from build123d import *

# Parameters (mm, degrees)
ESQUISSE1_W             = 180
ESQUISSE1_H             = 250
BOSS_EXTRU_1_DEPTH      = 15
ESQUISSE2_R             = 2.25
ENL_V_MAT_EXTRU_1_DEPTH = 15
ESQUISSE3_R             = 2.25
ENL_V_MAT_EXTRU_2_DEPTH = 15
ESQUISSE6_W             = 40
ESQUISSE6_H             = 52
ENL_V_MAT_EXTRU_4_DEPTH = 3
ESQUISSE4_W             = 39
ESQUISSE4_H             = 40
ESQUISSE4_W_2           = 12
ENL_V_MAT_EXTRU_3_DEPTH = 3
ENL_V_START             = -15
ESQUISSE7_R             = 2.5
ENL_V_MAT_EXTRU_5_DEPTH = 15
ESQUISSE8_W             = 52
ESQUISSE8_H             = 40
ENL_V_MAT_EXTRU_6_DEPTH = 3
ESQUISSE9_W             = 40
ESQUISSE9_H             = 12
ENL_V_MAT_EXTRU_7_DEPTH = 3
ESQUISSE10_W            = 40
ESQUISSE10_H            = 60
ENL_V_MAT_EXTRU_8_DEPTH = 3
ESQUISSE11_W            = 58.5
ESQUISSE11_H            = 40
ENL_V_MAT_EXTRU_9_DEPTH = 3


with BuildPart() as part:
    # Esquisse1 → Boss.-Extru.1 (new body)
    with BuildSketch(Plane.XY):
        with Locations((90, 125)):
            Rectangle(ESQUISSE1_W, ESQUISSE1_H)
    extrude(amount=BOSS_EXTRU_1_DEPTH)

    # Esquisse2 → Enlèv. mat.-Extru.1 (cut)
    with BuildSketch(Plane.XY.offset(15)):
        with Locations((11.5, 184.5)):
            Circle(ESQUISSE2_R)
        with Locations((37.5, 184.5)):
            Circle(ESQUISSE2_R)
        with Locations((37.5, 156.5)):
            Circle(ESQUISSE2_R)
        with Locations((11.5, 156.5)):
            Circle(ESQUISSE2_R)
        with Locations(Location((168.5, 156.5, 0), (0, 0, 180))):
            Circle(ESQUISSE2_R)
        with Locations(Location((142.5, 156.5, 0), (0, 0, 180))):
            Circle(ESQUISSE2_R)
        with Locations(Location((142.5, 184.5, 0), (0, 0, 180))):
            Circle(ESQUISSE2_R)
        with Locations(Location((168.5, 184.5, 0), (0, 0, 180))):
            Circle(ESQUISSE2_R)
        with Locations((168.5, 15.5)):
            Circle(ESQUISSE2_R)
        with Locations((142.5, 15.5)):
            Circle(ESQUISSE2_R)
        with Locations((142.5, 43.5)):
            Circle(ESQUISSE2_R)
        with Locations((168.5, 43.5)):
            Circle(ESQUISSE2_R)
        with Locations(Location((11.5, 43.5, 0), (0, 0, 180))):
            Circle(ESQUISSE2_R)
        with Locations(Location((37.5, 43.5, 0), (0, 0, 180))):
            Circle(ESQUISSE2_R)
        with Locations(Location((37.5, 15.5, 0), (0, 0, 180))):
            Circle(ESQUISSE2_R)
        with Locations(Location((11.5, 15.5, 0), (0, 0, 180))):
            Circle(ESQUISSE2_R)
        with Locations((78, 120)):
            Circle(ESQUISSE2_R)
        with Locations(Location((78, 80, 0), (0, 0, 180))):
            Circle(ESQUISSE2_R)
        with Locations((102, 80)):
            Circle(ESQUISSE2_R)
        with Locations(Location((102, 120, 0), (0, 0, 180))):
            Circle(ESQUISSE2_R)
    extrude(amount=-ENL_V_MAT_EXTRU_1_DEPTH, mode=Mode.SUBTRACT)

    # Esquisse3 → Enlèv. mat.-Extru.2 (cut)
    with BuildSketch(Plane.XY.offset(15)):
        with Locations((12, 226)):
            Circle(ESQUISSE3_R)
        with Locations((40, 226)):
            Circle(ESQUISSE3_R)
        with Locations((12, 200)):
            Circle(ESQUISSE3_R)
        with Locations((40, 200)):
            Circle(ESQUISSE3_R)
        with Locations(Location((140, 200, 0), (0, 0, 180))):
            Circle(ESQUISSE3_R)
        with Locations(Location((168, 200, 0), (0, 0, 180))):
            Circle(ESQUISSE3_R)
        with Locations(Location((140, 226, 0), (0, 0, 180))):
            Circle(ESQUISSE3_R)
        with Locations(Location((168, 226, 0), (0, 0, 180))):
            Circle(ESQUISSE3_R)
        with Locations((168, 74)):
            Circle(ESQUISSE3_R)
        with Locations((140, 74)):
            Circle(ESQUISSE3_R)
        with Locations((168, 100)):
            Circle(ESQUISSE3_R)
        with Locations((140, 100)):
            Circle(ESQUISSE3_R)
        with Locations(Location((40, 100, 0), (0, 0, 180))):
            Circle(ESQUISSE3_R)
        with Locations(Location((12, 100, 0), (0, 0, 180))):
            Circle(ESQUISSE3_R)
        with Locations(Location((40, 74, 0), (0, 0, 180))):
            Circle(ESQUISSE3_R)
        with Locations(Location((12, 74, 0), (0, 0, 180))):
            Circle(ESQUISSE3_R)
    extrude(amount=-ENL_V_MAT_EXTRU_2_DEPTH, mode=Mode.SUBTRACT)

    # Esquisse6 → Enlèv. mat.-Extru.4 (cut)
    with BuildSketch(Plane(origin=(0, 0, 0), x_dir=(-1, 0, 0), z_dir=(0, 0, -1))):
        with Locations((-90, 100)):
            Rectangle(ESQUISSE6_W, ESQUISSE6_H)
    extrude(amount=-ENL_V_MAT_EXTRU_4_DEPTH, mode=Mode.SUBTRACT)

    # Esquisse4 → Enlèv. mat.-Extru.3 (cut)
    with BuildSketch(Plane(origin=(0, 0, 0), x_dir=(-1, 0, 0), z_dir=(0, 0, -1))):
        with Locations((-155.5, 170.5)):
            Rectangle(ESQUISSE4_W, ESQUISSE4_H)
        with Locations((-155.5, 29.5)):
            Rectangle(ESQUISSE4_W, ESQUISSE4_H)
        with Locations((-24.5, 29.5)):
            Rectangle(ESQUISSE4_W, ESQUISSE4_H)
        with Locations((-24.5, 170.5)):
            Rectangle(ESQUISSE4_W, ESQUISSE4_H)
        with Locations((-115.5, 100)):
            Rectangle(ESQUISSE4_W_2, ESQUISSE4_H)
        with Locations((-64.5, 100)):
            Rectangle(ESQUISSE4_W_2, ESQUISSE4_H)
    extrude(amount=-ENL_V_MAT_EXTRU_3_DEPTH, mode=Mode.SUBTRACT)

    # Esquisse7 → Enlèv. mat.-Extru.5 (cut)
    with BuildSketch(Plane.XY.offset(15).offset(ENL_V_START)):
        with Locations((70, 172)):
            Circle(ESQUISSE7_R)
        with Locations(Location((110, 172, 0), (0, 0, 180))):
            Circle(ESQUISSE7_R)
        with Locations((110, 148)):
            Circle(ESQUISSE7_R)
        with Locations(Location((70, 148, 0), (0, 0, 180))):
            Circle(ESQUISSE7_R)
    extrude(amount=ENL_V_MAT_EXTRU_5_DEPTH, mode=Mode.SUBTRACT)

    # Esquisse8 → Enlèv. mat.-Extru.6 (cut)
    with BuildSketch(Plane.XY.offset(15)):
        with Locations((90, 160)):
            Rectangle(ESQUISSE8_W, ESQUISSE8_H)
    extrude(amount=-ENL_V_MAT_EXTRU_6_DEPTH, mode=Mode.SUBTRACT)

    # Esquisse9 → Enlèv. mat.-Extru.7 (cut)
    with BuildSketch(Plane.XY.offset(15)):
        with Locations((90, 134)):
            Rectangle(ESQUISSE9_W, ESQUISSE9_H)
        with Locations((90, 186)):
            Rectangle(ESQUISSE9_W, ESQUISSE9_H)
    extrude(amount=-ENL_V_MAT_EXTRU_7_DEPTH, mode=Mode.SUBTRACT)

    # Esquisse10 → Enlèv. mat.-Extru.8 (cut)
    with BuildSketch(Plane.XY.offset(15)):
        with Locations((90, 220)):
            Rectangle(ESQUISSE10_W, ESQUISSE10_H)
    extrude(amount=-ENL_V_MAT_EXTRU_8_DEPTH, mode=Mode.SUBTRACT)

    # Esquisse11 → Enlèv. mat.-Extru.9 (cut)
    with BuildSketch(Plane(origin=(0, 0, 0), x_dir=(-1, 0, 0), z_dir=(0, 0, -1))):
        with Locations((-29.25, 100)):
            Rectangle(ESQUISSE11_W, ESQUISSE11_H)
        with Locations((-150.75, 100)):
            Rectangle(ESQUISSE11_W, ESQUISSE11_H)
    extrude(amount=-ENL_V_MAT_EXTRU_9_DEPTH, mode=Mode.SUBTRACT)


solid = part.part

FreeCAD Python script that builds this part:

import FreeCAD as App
import Part
import Sketcher

doc = App.newDocument("Part")
body = doc.addObject("PartDesign::Body", "Body")

sketch1 = body.newObject("Sketcher::SketchObject", "Sketch")
sketch1.AttachmentSupport = (doc.getObject("XY_Plane"), [""])
sketch1.MapMode = "FlatFace"
sketch1.addGeometry([
    Part.LineSegment(App.Vector(0, 250, 0), App.Vector(0, 0, 0)),
    Part.LineSegment(App.Vector(0, 0, 0), App.Vector(180, 0, 0)),
    Part.LineSegment(App.Vector(180, 0, 0), App.Vector(180, 250, 0)),
    Part.LineSegment(App.Vector(180, 250, 0), App.Vector(0, 250, 0)),
], False)
sketch1.addConstraint([
    Sketcher.Constraint("Coincident", 0, 2, 1, 1),
    Sketcher.Constraint("Coincident", 1, 2, 2, 1),
    Sketcher.Constraint("Coincident", 2, 2, 3, 1),
    Sketcher.Constraint("Coincident", 3, 2, 0, 1),
    Sketcher.Constraint("Vertical", 0),
    Sketcher.Constraint("Horizontal", 1),
    Sketcher.Constraint("Vertical", 2),
    Sketcher.Constraint("Horizontal", 3),
    Sketcher.Constraint("Coincident", 0, 2, -1, 1),
    Sketcher.Constraint("DistanceX", 1, 1, 1, 2, 180.0),
    Sketcher.Constraint("DistanceY", 0, 2, 0, 1, 250.0),
])
pad1 = body.newObject("PartDesign::Pad", "Pad")
pad1.Profile = sketch1
pad1.Length = 15

sketch2 = body.newObject("Sketcher::SketchObject", "Sketch001")
sketch2.AttachmentSupport = (doc.getObject("XY_Plane"), [""])
sketch2.MapMode = "FlatFace"
sketch2.AttachmentOffset = App.Placement(App.Vector(0, 0, 15), App.Rotation())
sketch2.addGeometry([
    Part.Circle(App.Vector(11.5, 184.5, 0), App.Vector(0, 0, 1), 2.2),
    Part.Circle(App.Vector(37.5, 184.5, 0), App.Vector(0, 0, 1), 2.2),
    Part.Circle(App.Vector(37.5, 156.5, 0), App.Vector(0, 0, 1), 2.2),
    Part.Circle(App.Vector(11.5, 156.5, 0), App.Vector(0, 0, 1), 2.2),
    Part.Circle(App.Vector(168.5, 156.5, 0), App.Vector(0, 0, 1), 2.2),
    Part.Circle(App.Vector(142.5, 156.5, 0), App.Vector(0, 0, 1), 2.2),
    Part.Circle(App.Vector(142.5, 184.5, 0), App.Vector(0, 0, 1), 2.2),
    Part.Circle(App.Vector(168.5, 184.5, 0), App.Vector(0, 0, 1), 2.2),
    Part.Circle(App.Vector(168.5, 15.5, 0), App.Vector(0, 0, 1), 2.2),
    Part.Circle(App.Vector(142.5, 15.5, 0), App.Vector(0, 0, 1), 2.2),
    Part.Circle(App.Vector(142.5, 43.5, 0), App.Vector(0, 0, 1), 2.2),
    Part.Circle(App.Vector(168.5, 43.5, 0), App.Vector(0, 0, 1), 2.2),
    Part.Circle(App.Vector(11.5, 43.5, 0), App.Vector(0, 0, 1), 2.2),
    Part.Circle(App.Vector(37.5, 43.5, 0), App.Vector(0, 0, 1), 2.2),
    Part.Circle(App.Vector(37.5, 15.5, 0), App.Vector(0, 0, 1), 2.2),
    Part.Circle(App.Vector(11.5, 15.5, 0), App.Vector(0, 0, 1), 2.2),
    Part.Circle(App.Vector(78, 120, 0), App.Vector(0, 0, 1), 2.2),
    Part.Circle(App.Vector(78, 80, 0), App.Vector(0, 0, 1), 2.2),
    Part.Circle(App.Vector(102, 80, 0), App.Vector(0, 0, 1), 2.2),
    Part.Circle(App.Vector(102, 120, 0), App.Vector(0, 0, 1), 2.2),
], False)
sketch2.addConstraint([
    Sketcher.Constraint("Equal", 0, 1),
    Sketcher.Constraint("Equal", 1, 2),
    Sketcher.Constraint("Equal", 2, 3),
    Sketcher.Constraint("Equal", 3, 4),
    Sketcher.Constraint("Equal", 4, 5),
    Sketcher.Constraint("Equal", 5, 6),
    Sketcher.Constraint("Equal", 6, 7),
    Sketcher.Constraint("Equal", 7, 8),
    Sketcher.Constraint("Equal", 8, 9),
    Sketcher.Constraint("Equal", 9, 10),
    Sketcher.Constraint("Equal", 10, 11),
    Sketcher.Constraint("Equal", 11, 12),
    Sketcher.Constraint("Equal", 12, 13),
    Sketcher.Constraint("Equal", 13, 14),
    Sketcher.Constraint("Equal", 14, 15),
    Sketcher.Constraint("Equal", 15, 16),
    Sketcher.Constraint("Equal", 16, 17),
    Sketcher.Constraint("Equal", 17, 18),
    Sketcher.Constraint("Equal", 18, 19),
    Sketcher.Constraint("Horizontal", 0, 3, 1, 3),
    Sketcher.Constraint("Horizontal", 2, 3, 3, 3),
    Sketcher.Constraint("Horizontal", 3, 3, 4, 3),
    Sketcher.Constraint("Horizontal", 4, 3, 5, 3),
    Sketcher.Constraint("Horizontal", 1, 3, 6, 3),
    Sketcher.Constraint("Horizontal", 6, 3, 7, 3),
    Sketcher.Constraint("Horizontal", 8, 3, 9, 3),
    Sketcher.Constraint("Horizontal", 10, 3, 11, 3),
    Sketcher.Constraint("Horizontal", 11, 3, 12, 3),
    Sketcher.Constraint("Horizontal", 12, 3, 13, 3),
    Sketcher.Constraint("Horizontal", 9, 3, 14, 3),
    Sketcher.Constraint("Horizontal", 14, 3, 15, 3),
    Sketcher.Constraint("Horizontal", 17, 3, 18, 3),
    Sketcher.Constraint("Horizontal", 16, 3, 19, 3),
    Sketcher.Constraint("Vertical", 1, 3, 2, 3),
    Sketcher.Constraint("Vertical", 0, 3, 3, 3),
    Sketcher.Constraint("Vertical", 5, 3, 6, 3),
    Sketcher.Constraint("Vertical", 4, 3, 7, 3),
    Sketcher.Constraint("Vertical", 7, 3, 8, 3),
    Sketcher.Constraint("Vertical", 6, 3, 9, 3),
    Sketcher.Constraint("Vertical", 9, 3, 10, 3),
    Sketcher.Constraint("Vertical", 8, 3, 11, 3),
    Sketcher.Constraint("Vertical", 3, 3, 12, 3),
    Sketcher.Constraint("Vertical", 2, 3, 13, 3),
    Sketcher.Constraint("Vertical", 13, 3, 14, 3),
    Sketcher.Constraint("Vertical", 12, 3, 15, 3),
    Sketcher.Constraint("Vertical", 16, 3, 17, 3),
    Sketcher.Constraint("Vertical", 18, 3, 19, 3),
    Sketcher.Constraint("Diameter", 0, 4.5),
    Sketcher.Constraint("DistanceX", -1, 1, 16, 3, 78.0),
    Sketcher.Constraint("DistanceY", -1, 1, 16, 3, 120.0),
    Sketcher.Constraint("DistanceY", -1, 1, 17, 3, 80.0),
    Sketcher.Constraint("DistanceX", -1, 1, 18, 3, 102.0),
    Sketcher.Constraint("DistanceX", 0, 3, 1, 3, 26.0),
    Sketcher.Constraint("DistanceY", 2, 3, 1, 3, 28.0),
    Sketcher.Constraint("DistanceX", 2, 3, 4, 3, 131.0),
    Sketcher.Constraint("DistanceX", 5, 3, 4, 3, 26.0),
    Sketcher.Constraint("DistanceY", 8, 3, 4, 3, 141.0),
    Sketcher.Constraint("DistanceY", 9, 3, 10, 3, 28.0),
    Sketcher.Constraint("DistanceX", -1, 1, 0, 3, 11.5),
    Sketcher.Constraint("DistanceY", -1, 1, 0, 3, 184.5),
])
pocket1 = body.newObject("PartDesign::Pocket", "Pocket")
pocket1.Profile = sketch2
pocket1.Length = 15

sketch3 = body.newObject("Sketcher::SketchObject", "Sketch002")
sketch3.AttachmentSupport = (doc.getObject("XY_Plane"), [""])
sketch3.MapMode = "FlatFace"
sketch3.AttachmentOffset = App.Placement(App.Vector(0, 0, 15), App.Rotation())
sketch3.addGeometry([
    Part.Circle(App.Vector(12, 226, 0), App.Vector(0, 0, 1), 2.2),
    Part.Circle(App.Vector(40, 226, 0), App.Vector(0, 0, 1), 2.2),
    Part.Circle(App.Vector(12, 200, 0), App.Vector(0, 0, 1), 2.2),
    Part.Circle(App.Vector(40, 200, 0), App.Vector(0, 0, 1), 2.2),
    Part.Circle(App.Vector(140, 200, 0), App.Vector(0, 0, 1), 2.2),
    Part.Circle(App.Vector(168, 200, 0), App.Vector(0, 0, 1), 2.2),
    Part.Circle(App.Vector(140, 226, 0), App.Vector(0, 0, 1), 2.2),
    Part.Circle(App.Vector(168, 226, 0), App.Vector(0, 0, 1), 2.2),
    Part.Circle(App.Vector(168, 74, 0), App.Vector(0, 0, 1), 2.2),
    Part.Circle(App.Vector(140, 74, 0), App.Vector(0, 0, 1), 2.2),
    Part.Circle(App.Vector(168, 100, 0), App.Vector(0, 0, 1), 2.2),
    Part.Circle(App.Vector(140, 100, 0), App.Vector(0, 0, 1), 2.2),
    Part.Circle(App.Vector(40, 100, 0), App.Vector(0, 0, 1), 2.2),
    Part.Circle(App.Vector(12, 100, 0), App.Vector(0, 0, 1), 2.2),
    Part.Circle(App.Vector(40, 74, 0), App.Vector(0, 0, 1), 2.2),
    Part.Circle(App.Vector(12, 74, 0), App.Vector(0, 0, 1), 2.2),
], False)
sketch3.addConstraint([
    Sketcher.Constraint("Equal", 0, 1),
    Sketcher.Constraint("Equal", 1, 2),
    Sketcher.Constraint("Equal", 2, 3),
    Sketcher.Constraint("Equal", 3, 4),
    Sketcher.Constraint("Equal", 4, 5),
    Sketcher.Constraint("Equal", 5, 6),
    Sketcher.Constraint("Equal", 6, 7),
    Sketcher.Constraint("Equal", 7, 8),
    Sketcher.Constraint("Equal", 8, 9),
    Sketcher.Constraint("Equal", 9, 10),
    Sketcher.Constraint("Equal", 10, 11),
    Sketcher.Constraint("Equal", 11, 12),
    Sketcher.Constraint("Equal", 12, 13),
    Sketcher.Constraint("Equal", 13, 14),
    Sketcher.Constraint("Equal", 14, 15),
    Sketcher.Constraint("Horizontal", 0, 3, 1, 3),
    Sketcher.Constraint("Horizontal", 2, 3, 3, 3),
    Sketcher.Constraint("Horizontal", 3, 3, 4, 3),
    Sketcher.Constraint("Horizontal", 4, 3, 5, 3),
    Sketcher.Constraint("Horizontal", 1, 3, 6, 3),
    Sketcher.Constraint("Horizontal", 6, 3, 7, 3),
    Sketcher.Constraint("Horizontal", 8, 3, 9, 3),
    Sketcher.Constraint("Horizontal", 10, 3, 11, 3),
    Sketcher.Constraint("Horizontal", 11, 3, 12, 3),
    Sketcher.Constraint("Horizontal", 12, 3, 13, 3),
    Sketcher.Constraint("Horizontal", 9, 3, 14, 3),
    Sketcher.Constraint("Horizontal", 14, 3, 15, 3),
    Sketcher.Constraint("Vertical", 0, 3, 2, 3),
    Sketcher.Constraint("Vertical", 1, 3, 3, 3),
    Sketcher.Constraint("Vertical", 4, 3, 6, 3),
    Sketcher.Constraint("Vertical", 5, 3, 7, 3),
    Sketcher.Constraint("Vertical", 7, 3, 8, 3),
    Sketcher.Constraint("Vertical", 6, 3, 9, 3),
    Sketcher.Constraint("Vertical", 8, 3, 10, 3),
    Sketcher.Constraint("Vertical", 9, 3, 11, 3),
    Sketcher.Constraint("Vertical", 3, 3, 12, 3),
    Sketcher.Constraint("Vertical", 2, 3, 13, 3),
    Sketcher.Constraint("Vertical", 12, 3, 14, 3),
    Sketcher.Constraint("Vertical", 13, 3, 15, 3),
    Sketcher.Constraint("Diameter", 0, 4.5),
    Sketcher.Constraint("DistanceX", -1, 1, 0, 3, 12.0),
    Sketcher.Constraint("DistanceY", -1, 1, 0, 3, 226.0),
    Sketcher.Constraint("DistanceX", -1, 1, 1, 3, 40.0),
    Sketcher.Constraint("DistanceY", -1, 1, 2, 3, 200.0),
    Sketcher.Constraint("DistanceX", -1, 1, 4, 3, 140.0),
    Sketcher.Constraint("DistanceX", -1, 1, 5, 3, 168.0),
    Sketcher.Constraint("DistanceY", -1, 1, 8, 3, 74.0),
    Sketcher.Constraint("DistanceY", -1, 1, 10, 3, 100.0),
])
pocket2 = body.newObject("PartDesign::Pocket", "Pocket001")
pocket2.Profile = sketch3
pocket2.Length = 15

sketch4 = body.newObject("Sketcher::SketchObject", "Sketch003")
sketch4.AttachmentSupport = (doc.getObject("XY_Plane"), [""])
sketch4.MapMode = "FlatFace"
sketch4.addGeometry([
    Part.LineSegment(App.Vector(110, 126, 0), App.Vector(110, 74, 0)),
    Part.LineSegment(App.Vector(110, 74, 0), App.Vector(70, 74, 0)),
    Part.LineSegment(App.Vector(70, 74, 0), App.Vector(70, 126, 0)),
    Part.LineSegment(App.Vector(70, 126, 0), App.Vector(110, 126, 0)),
], False)
sketch4.addConstraint([
    Sketcher.Constraint("Coincident", 0, 2, 1, 1),
    Sketcher.Constraint("Coincident", 1, 2, 2, 1),
    Sketcher.Constraint("Coincident", 2, 2, 3, 1),
    Sketcher.Constraint("Coincident", 3, 2, 0, 1),
    Sketcher.Constraint("Vertical", 0),
    Sketcher.Constraint("Horizontal", 1),
    Sketcher.Constraint("Vertical", 2),
    Sketcher.Constraint("Horizontal", 3),
    Sketcher.Constraint("DistanceX", 1, 2, 1, 1, 40.0),
    Sketcher.Constraint("DistanceY", 0, 2, 0, 1, 52.0),
    Sketcher.Constraint("DistanceX", -1, 1, 0, 2, 110.0),
    Sketcher.Constraint("DistanceY", -1, 1, 0, 2, 74.0),
])
pocket3 = body.newObject("PartDesign::Pocket", "Pocket002")
pocket3.Profile = sketch4
pocket3.Length = 3
pocket3.Reversed = True

sketch5 = body.newObject("Sketcher::SketchObject", "Sketch004")
sketch5.AttachmentSupport = (doc.getObject("XY_Plane"), [""])
sketch5.MapMode = "FlatFace"
sketch5.addGeometry([
    Part.LineSegment(App.Vector(175, 190, 0), App.Vector(175, 150, 0)),
    Part.LineSegment(App.Vector(175, 150, 0), App.Vector(136, 150, 0)),
    Part.LineSegment(App.Vector(136, 150, 0), App.Vector(136, 190, 0)),
    Part.LineSegment(App.Vector(136, 190, 0), App.Vector(175, 190, 0)),
    Part.LineSegment(App.Vector(175, 50, 0), App.Vector(175, 10, 0)),
    Part.LineSegment(App.Vector(175, 10, 0), App.Vector(136, 10, 0)),
    Part.LineSegment(App.Vector(136, 10, 0), App.Vector(136, 50, 0)),
    Part.LineSegment(App.Vector(136, 50, 0), App.Vector(175, 50, 0)),
    Part.LineSegment(App.Vector(44, 50, 0), App.Vector(44, 10, 0)),
    Part.LineSegment(App.Vector(44, 10, 0), App.Vector(5, 10, 0)),
    Part.LineSegment(App.Vector(5, 10, 0), App.Vector(5, 50, 0)),
    Part.LineSegment(App.Vector(5, 50, 0), App.Vector(44, 50, 0)),
    Part.LineSegment(App.Vector(44, 190, 0), App.Vector(44, 150, 0)),
    Part.LineSegment(App.Vector(44, 150, 0), App.Vector(5, 150, 0)),
    Part.LineSegment(App.Vector(5, 150, 0), App.Vector(5, 190, 0)),
    Part.LineSegment(App.Vector(5, 190, 0), App.Vector(44, 190, 0)),
    Part.LineSegment(App.Vector(122, 120, 0), App.Vector(122, 80, 0)),
    Part.LineSegment(App.Vector(122, 80, 0), App.Vector(110, 80, 0)),
    Part.LineSegment(App.Vector(110, 80, 0), App.Vector(110, 120, 0)),
    Part.LineSegment(App.Vector(110, 120, 0), App.Vector(122, 120, 0)),
    Part.LineSegment(App.Vector(70, 120, 0), App.Vector(70, 80, 0)),
    Part.LineSegment(App.Vector(70, 80, 0), App.Vector(58, 80, 0)),
    Part.LineSegment(App.Vector(58, 80, 0), App.Vector(58, 120, 0)),
    Part.LineSegment(App.Vector(58, 120, 0), App.Vector(70, 120, 0)),
], False)
sketch5.addConstraint([
    Sketcher.Constraint("Coincident", 0, 2, 1, 1),
    Sketcher.Constraint("Coincident", 1, 2, 2, 1),
    Sketcher.Constraint("Coincident", 2, 2, 3, 1),
    Sketcher.Constraint("Coincident", 3, 2, 0, 1),
    Sketcher.Constraint("Coincident", 4, 2, 5, 1),
    Sketcher.Constraint("Coincident", 5, 2, 6, 1),
    Sketcher.Constraint("Coincident", 6, 2, 7, 1),
    Sketcher.Constraint("Coincident", 7, 2, 4, 1),
    Sketcher.Constraint("Coincident", 8, 2, 9, 1),
    Sketcher.Constraint("Coincident", 9, 2, 10, 1),
    Sketcher.Constraint("Coincident", 10, 2, 11, 1),
    Sketcher.Constraint("Coincident", 11, 2, 8, 1),
    Sketcher.Constraint("Coincident", 12, 2, 13, 1),
    Sketcher.Constraint("Coincident", 13, 2, 14, 1),
    Sketcher.Constraint("Coincident", 14, 2, 15, 1),
    Sketcher.Constraint("Coincident", 15, 2, 12, 1),
    Sketcher.Constraint("Coincident", 16, 2, 17, 1),
    Sketcher.Constraint("Coincident", 17, 2, 18, 1),
    Sketcher.Constraint("Coincident", 18, 2, 19, 1),
    Sketcher.Constraint("Coincident", 19, 2, 16, 1),
    Sketcher.Constraint("Coincident", 20, 2, 21, 1),
    Sketcher.Constraint("Coincident", 21, 2, 22, 1),
    Sketcher.Constraint("Coincident", 22, 2, 23, 1),
    Sketcher.Constraint("Coincident", 23, 2, 20, 1),
    Sketcher.Constraint("Vertical", 0),
    Sketcher.Constraint("Horizontal", 1),
    Sketcher.Constraint("Vertical", 2),
    Sketcher.Constraint("Horizontal", 3),
    Sketcher.Constraint("Vertical", 4),
    Sketcher.Constraint("Horizontal", 5),
    Sketcher.Constraint("Vertical", 6),
    Sketcher.Constraint("Horizontal", 7),
    Sketcher.Constraint("Vertical", 8),
    Sketcher.Constraint("Horizontal", 9),
    Sketcher.Constraint("Vertical", 10),
    Sketcher.Constraint("Horizontal", 11),
    Sketcher.Constraint("Vertical", 12),
    Sketcher.Constraint("Horizontal", 13),
    Sketcher.Constraint("Vertical", 14),
    Sketcher.Constraint("Horizontal", 15),
    Sketcher.Constraint("Vertical", 16),
    Sketcher.Constraint("Horizontal", 17),
    Sketcher.Constraint("Vertical", 18),
    Sketcher.Constraint("Horizontal", 19),
    Sketcher.Constraint("Vertical", 20),
    Sketcher.Constraint("Horizontal", 21),
    Sketcher.Constraint("Vertical", 22),
    Sketcher.Constraint("Horizontal", 23),
    Sketcher.Constraint("Horizontal", 5, 2, 8, 2),
    Sketcher.Constraint("Horizontal", 7, 2, 10, 2),
    Sketcher.Constraint("Horizontal", 1, 2, 12, 2),
    Sketcher.Constraint("Horizontal", 3, 2, 14, 2),
    Sketcher.Constraint("Horizontal", 17, 2, 20, 2),
    Sketcher.Constraint("Horizontal", 19, 2, 22, 2),
    Sketcher.Constraint("Vertical", 3, 2, 4, 2),
    Sketcher.Constraint("Vertical", 2, 2, 5, 2),
    Sketcher.Constraint("Vertical", 11, 2, 12, 2),
    Sketcher.Constraint("Vertical", 10, 2, 13, 2),
    Sketcher.Constraint("Equal", 7, 9),
    Sketcher.Constraint("Equal", 19, 21),
    Sketcher.Constraint("Equal", 2, 4),
    Sketcher.Constraint("Equal", 14, 16),
    Sketcher.Constraint("DistanceX", 1, 2, 1, 1, 39.0),
    Sketcher.Constraint("DistanceX", 17, 2, 17, 1, 12.0),
    Sketcher.Constraint("DistanceY", 0, 2, 0, 1, 40.0),
    Sketcher.Constraint("DistanceX", -1, 1, 0, 2, 175.0),
    Sketcher.Constraint("DistanceX", -1, 1, 8, 2, 44.0),
    Sketcher.Constraint("DistanceY", -1, 1, 16, 2, 80.0),
    Sketcher.Constraint("DistanceY", 4, 2, 0, 2, 141.0),
    Sketcher.Constraint("DistanceX", 20, 2, 17, 2, 39.0),
    Sketcher.Constraint("DistanceY", -1, 1, 0, 2, 150.5),
    Sketcher.Constraint("DistanceX", -1, 1, 16, 2, 121.5),
])
pocket4 = body.newObject("PartDesign::Pocket", "Pocket003")
pocket4.Profile = sketch5
pocket4.Length = 3
pocket4.Reversed = True

sketch6 = body.newObject("Sketcher::SketchObject", "Sketch005")
sketch6.AttachmentSupport = (doc.getObject("XY_Plane"), [""])
sketch6.MapMode = "FlatFace"
sketch6.addGeometry([
    Part.Circle(App.Vector(70, 172, 0), App.Vector(0, 0, 1), 2.5),
    Part.Circle(App.Vector(110, 172, 0), App.Vector(0, 0, 1), 2.5),
    Part.Circle(App.Vector(110, 148, 0), App.Vector(0, 0, 1), 2.5),
    Part.Circle(App.Vector(70, 148, 0), App.Vector(0, 0, 1), 2.5),
], False)
sketch6.addConstraint([
    Sketcher.Constraint("Equal", 0, 1),
    Sketcher.Constraint("Equal", 1, 2),
    Sketcher.Constraint("Equal", 2, 3),
    Sketcher.Constraint("Horizontal", 0, 3, 1, 3),
    Sketcher.Constraint("Horizontal", 2, 3, 3, 3),
    Sketcher.Constraint("Vertical", 1, 3, 2, 3),
    Sketcher.Constraint("Vertical", 0, 3, 3, 3),
    Sketcher.Constraint("Diameter", 0, 5.0),
    Sketcher.Constraint("DistanceX", -1, 1, 0, 3, 70.0),
    Sketcher.Constraint("DistanceY", -1, 1, 0, 3, 172.0),
    Sketcher.Constraint("DistanceX", -1, 1, 1, 3, 110.0),
    Sketcher.Constraint("DistanceY", -1, 1, 2, 3, 148.0),
])
pocket5 = body.newObject("PartDesign::Pocket", "Pocket004")
pocket5.Profile = sketch6
pocket5.Length = 15
pocket5.Reversed = True

sketch7 = body.newObject("Sketcher::SketchObject", "Sketch006")
sketch7.AttachmentSupport = (doc.getObject("XY_Plane"), [""])
sketch7.MapMode = "FlatFace"
sketch7.AttachmentOffset = App.Placement(App.Vector(0, 0, 15), App.Rotation())
sketch7.addGeometry([
    Part.LineSegment(App.Vector(64, 180, 0), App.Vector(64, 140, 0)),
    Part.LineSegment(App.Vector(64, 140, 0), App.Vector(116, 140, 0)),
    Part.LineSegment(App.Vector(116, 140, 0), App.Vector(116, 180, 0)),
    Part.LineSegment(App.Vector(116, 180, 0), App.Vector(64, 180, 0)),
], False)
sketch7.addConstraint([
    Sketcher.Constraint("Coincident", 0, 2, 1, 1),
    Sketcher.Constraint("Coincident", 1, 2, 2, 1),
    Sketcher.Constraint("Coincident", 2, 2, 3, 1),
    Sketcher.Constraint("Coincident", 3, 2, 0, 1),
    Sketcher.Constraint("Vertical", 0),
    Sketcher.Constraint("Horizontal", 1),
    Sketcher.Constraint("Vertical", 2),
    Sketcher.Constraint("Horizontal", 3),
    Sketcher.Constraint("DistanceX", 1, 1, 1, 2, 52.0),
    Sketcher.Constraint("DistanceY", 0, 2, 0, 1, 40.0),
    Sketcher.Constraint("DistanceX", -1, 1, 0, 2, 64.0),
    Sketcher.Constraint("DistanceY", -1, 1, 0, 2, 140.0),
])
pocket6 = body.newObject("PartDesign::Pocket", "Pocket005")
pocket6.Profile = sketch7
pocket6.Length = 3

sketch8 = body.newObject("Sketcher::SketchObject", "Sketch007")
sketch8.AttachmentSupport = (doc.getObject("XY_Plane"), [""])
sketch8.MapMode = "FlatFace"
sketch8.AttachmentOffset = App.Placement(App.Vector(0, 0, 15), App.Rotation())
sketch8.addGeometry([
    Part.LineSegment(App.Vector(70, 140, 0), App.Vector(70, 128, 0)),
    Part.LineSegment(App.Vector(70, 128, 0), App.Vector(110, 128, 0)),
    Part.LineSegment(App.Vector(110, 128, 0), App.Vector(110, 140, 0)),
    Part.LineSegment(App.Vector(110, 140, 0), App.Vector(70, 140, 0)),
    Part.LineSegment(App.Vector(70, 192, 0), App.Vector(70, 180, 0)),
    Part.LineSegment(App.Vector(70, 180, 0), App.Vector(110, 180, 0)),
    Part.LineSegment(App.Vector(110, 180, 0), App.Vector(110, 192, 0)),
    Part.LineSegment(App.Vector(110, 192, 0), App.Vector(70, 192, 0)),
], False)
sketch8.addConstraint([
    Sketcher.Constraint("Coincident", 0, 2, 1, 1),
    Sketcher.Constraint("Coincident", 1, 2, 2, 1),
    Sketcher.Constraint("Coincident", 2, 2, 3, 1),
    Sketcher.Constraint("Coincident", 3, 2, 0, 1),
    Sketcher.Constraint("Coincident", 4, 2, 5, 1),
    Sketcher.Constraint("Coincident", 5, 2, 6, 1),
    Sketcher.Constraint("Coincident", 6, 2, 7, 1),
    Sketcher.Constraint("Coincident", 7, 2, 4, 1),
    Sketcher.Constraint("Vertical", 0),
    Sketcher.Constraint("Horizontal", 1),
    Sketcher.Constraint("Vertical", 2),
    Sketcher.Constraint("Horizontal", 3),
    Sketcher.Constraint("Vertical", 4),
    Sketcher.Constraint("Horizontal", 5),
    Sketcher.Constraint("Vertical", 6),
    Sketcher.Constraint("Horizontal", 7),
    Sketcher.Constraint("Vertical", 3, 2, 4, 2),
    Sketcher.Constraint("Vertical", 2, 2, 5, 2),
    Sketcher.Constraint("Equal", 2, 4),
    Sketcher.Constraint("DistanceX", 1, 1, 1, 2, 40.0),
    Sketcher.Constraint("DistanceY", 0, 2, 0, 1, 12.0),
    Sketcher.Constraint("DistanceX", -1, 1, 0, 2, 70.0),
    Sketcher.Constraint("DistanceY", -1, 1, 0, 2, 128.0),
    Sketcher.Constraint("DistanceY", -1, 1, 4, 2, 180.0),
])
pocket7 = body.newObject("PartDesign::Pocket", "Pocket006")
pocket7.Profile = sketch8
pocket7.Length = 3

sketch9 = body.newObject("Sketcher::SketchObject", "Sketch008")
sketch9.AttachmentSupport = (doc.getObject("XY_Plane"), [""])
sketch9.MapMode = "FlatFace"
sketch9.AttachmentOffset = App.Placement(App.Vector(0, 0, 15), App.Rotation())
sketch9.addGeometry([
    Part.LineSegment(App.Vector(70, 250, 0), App.Vector(70, 190, 0)),
    Part.LineSegment(App.Vector(70, 190, 0), App.Vector(110, 190, 0)),
    Part.LineSegment(App.Vector(110, 190, 0), App.Vector(110, 250, 0)),
    Part.LineSegment(App.Vector(110, 250, 0), App.Vector(70, 250, 0)),
], False)
sketch9.addConstraint([
    Sketcher.Constraint("Coincident", 0, 2, 1, 1),
    Sketcher.Constraint("Coincident", 1, 2, 2, 1),
    Sketcher.Constraint("Coincident", 2, 2, 3, 1),
    Sketcher.Constraint("Coincident", 3, 2, 0, 1),
    Sketcher.Constraint("Vertical", 0),
    Sketcher.Constraint("Horizontal", 1),
    Sketcher.Constraint("Vertical", 2),
    Sketcher.Constraint("Horizontal", 3),
    Sketcher.Constraint("DistanceX", 1, 1, 1, 2, 40.0),
    Sketcher.Constraint("DistanceY", 0, 2, 0, 1, 60.0),
    Sketcher.Constraint("DistanceX", -1, 1, 0, 2, 70.0),
    Sketcher.Constraint("DistanceY", -1, 1, 0, 2, 190.0),
])
pocket8 = body.newObject("PartDesign::Pocket", "Pocket007")
pocket8.Profile = sketch9
pocket8.Length = 3

sketch10 = body.newObject("Sketcher::SketchObject", "Sketch009")
sketch10.AttachmentSupport = (doc.getObject("XY_Plane"), [""])
sketch10.MapMode = "FlatFace"
sketch10.addGeometry([
    Part.LineSegment(App.Vector(58, 120, 0), App.Vector(58, 80, 0)),
    Part.LineSegment(App.Vector(58, 80, 0), App.Vector(0, 80, 0)),
    Part.LineSegment(App.Vector(0, 80, 0), App.Vector(0, 120, 0)),
    Part.LineSegment(App.Vector(0, 120, 0), App.Vector(58, 120, 0)),
    Part.LineSegment(App.Vector(180, 120, 0), App.Vector(180, 80, 0)),
    Part.LineSegment(App.Vector(180, 80, 0), App.Vector(122, 80, 0)),
    Part.LineSegment(App.Vector(122, 80, 0), App.Vector(122, 120, 0)),
    Part.LineSegment(App.Vector(122, 120, 0), App.Vector(180, 120, 0)),
], False)
sketch10.addConstraint([
    Sketcher.Constraint("Coincident", 0, 2, 1, 1),
    Sketcher.Constraint("Coincident", 1, 2, 2, 1),
    Sketcher.Constraint("Coincident", 2, 2, 3, 1),
    Sketcher.Constraint("Coincident", 3, 2, 0, 1),
    Sketcher.Constraint("Coincident", 4, 2, 5, 1),
    Sketcher.Constraint("Coincident", 5, 2, 6, 1),
    Sketcher.Constraint("Coincident", 6, 2, 7, 1),
    Sketcher.Constraint("Coincident", 7, 2, 4, 1),
    Sketcher.Constraint("Vertical", 0),
    Sketcher.Constraint("Horizontal", 1),
    Sketcher.Constraint("Vertical", 2),
    Sketcher.Constraint("Horizontal", 3),
    Sketcher.Constraint("Vertical", 4),
    Sketcher.Constraint("Horizontal", 5),
    Sketcher.Constraint("Vertical", 6),
    Sketcher.Constraint("Horizontal", 7),
    Sketcher.Constraint("PointOnObject", 1, 2, -2),
    Sketcher.Constraint("Horizontal", 1, 2, 4, 2),
    Sketcher.Constraint("Horizontal", 3, 2, 6, 2),
    Sketcher.Constraint("Equal", 3, 5),
    Sketcher.Constraint("DistanceY", 0, 2, 0, 1, 40.0),
    Sketcher.Constraint("DistanceX", 1, 2, 1, 1, 58.5),
    Sketcher.Constraint("DistanceY", -1, 1, 0, 2, 80.0),
    Sketcher.Constraint("DistanceX", -1, 1, 4, 2, 180.0),
])
pocket9 = body.newObject("PartDesign::Pocket", "Pocket008")
pocket9.Profile = sketch10
pocket9.Length = 3
pocket9.Reversed = True

doc.recompute()
